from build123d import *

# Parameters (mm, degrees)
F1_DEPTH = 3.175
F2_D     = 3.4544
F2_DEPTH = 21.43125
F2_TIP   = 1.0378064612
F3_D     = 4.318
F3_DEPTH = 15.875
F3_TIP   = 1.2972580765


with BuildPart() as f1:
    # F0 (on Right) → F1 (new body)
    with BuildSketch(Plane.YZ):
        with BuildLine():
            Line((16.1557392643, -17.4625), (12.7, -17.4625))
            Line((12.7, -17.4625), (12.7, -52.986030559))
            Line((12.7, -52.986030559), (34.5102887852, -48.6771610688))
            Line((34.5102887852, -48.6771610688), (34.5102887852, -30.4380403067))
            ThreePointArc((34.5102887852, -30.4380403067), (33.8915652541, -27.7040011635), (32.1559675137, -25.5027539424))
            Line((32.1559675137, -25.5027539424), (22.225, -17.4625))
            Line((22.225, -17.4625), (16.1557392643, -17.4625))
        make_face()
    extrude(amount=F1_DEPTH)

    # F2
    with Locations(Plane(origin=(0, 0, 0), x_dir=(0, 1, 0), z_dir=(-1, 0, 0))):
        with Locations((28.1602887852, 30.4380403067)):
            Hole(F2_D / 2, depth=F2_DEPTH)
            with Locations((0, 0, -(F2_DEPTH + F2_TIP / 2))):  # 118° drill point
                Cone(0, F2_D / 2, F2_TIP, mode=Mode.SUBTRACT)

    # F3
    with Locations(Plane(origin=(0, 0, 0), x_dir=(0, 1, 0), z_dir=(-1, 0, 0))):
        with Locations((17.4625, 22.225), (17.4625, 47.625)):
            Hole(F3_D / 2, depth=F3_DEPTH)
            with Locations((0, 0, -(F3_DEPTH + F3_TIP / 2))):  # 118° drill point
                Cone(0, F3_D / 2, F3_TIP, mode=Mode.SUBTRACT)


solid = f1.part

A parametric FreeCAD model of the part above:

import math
import FreeCAD as App
import Part
import Sketcher
from FreeCAD import Vector
Q = App.Units.Quantity

doc = App.newDocument("Part")
body = doc.addObject("PartDesign::Body", "Body")

# Sketch on YZ plane
sketch1 = body.newObject("Sketcher::SketchObject", "Sketch")
sketch1.AttachmentSupport = (doc.getObject("YZ_Plane"), [""])
sketch1.MapMode = "FlatFace"
sketch1.addGeometry([
    Part.LineSegment(Vector(13, -17, 0), Vector(13, -53, 0)),  # 0
    Part.LineSegment(Vector(13, -53, 0), Vector(35, -49, 0)),  # 1
    Part.LineSegment(Vector(35, -49, 0), Vector(35, -30, 0)),  # 2
    Part.ArcOfCircle(Part.Circle(Vector(28, -30, 0), Vector(0, 0, 1), 6), math.radians(0), math.radians(51)),  # 3
    Part.LineSegment(Vector(32, -26, 0), Vector(22, -17, 0)),  # 4
    Part.LineSegment(Vector(22, -17, 0), Vector(13, -17, 0)),  # 5
], False)
sketch1.addConstraint([
    Sketcher.Constraint("Coincident", 0, 2, 1, 1),
    Sketcher.Constraint("Coincident", 1, 2, 2, 1),
    Sketcher.Constraint("Tangent", 2, 2, 3, 1),
    Sketcher.Constraint("Tangent", 3, 2, 4, 1),
    Sketcher.Constraint("Coincident", 4, 2, 5, 1),
    Sketcher.Constraint("Coincident", 5, 2, 0, 1),
    Sketcher.Constraint("Vertical", 0),
    Sketcher.Constraint("Vertical", 2),
    Sketcher.Constraint("Horizontal", 5),
    Sketcher.Constraint("Radius", 3, Q("0.25 in")),
    Sketcher.Constraint("DistanceX", -1, 1, 0, 2, Q("0.5 in")),
    Sketcher.Constraint("DistanceX", 5, 2, 5, 1, Q("0.375 in")),
    Sketcher.Constraint("DistanceY", 4, 2, -1, 1, Q("0.6875 in")),
    Sketcher.Constraint("DistanceY", 0, 2, 0, 1, 35.523531),
    Sketcher.Constraint("DistanceY", 2, 1, 2, 2, 18.239121),
    Sketcher.Constraint("DistanceX", -1, 1, 3, 3, 28.160289),
    Sketcher.Constraint("DistanceY", 3, 3, -1, 1, 30.43804),
])
pad1 = body.newObject("PartDesign::Pad", "Pad")
pad1.Profile = sketch1
pad1.Length = Q("0.125 in")

# Sketch on YZ plane
sketch2 = body.newObject("Sketcher::SketchObject", "Sketch001")
sketch2.AttachmentSupport = (doc.getObject("YZ_Plane"), [""])
sketch2.MapMode = "FlatFace"
sketch2.addGeometry(Part.Circle(Vector(28.2, -30.4, 0), Vector(0, 0, 1), 1.7), False)
sketch2.addConstraint([
    Sketcher.Constraint("Diameter", 0, Q("0.136 in")),
    Sketcher.Constraint("DistanceX", -1, 1, 0, 3, 28.160289),
    Sketcher.Constraint("DistanceY", 0, 3, -1, 1, 30.43804),
])
doc.recompute()
hole = body.newObject("PartDesign::Hole", "Hole")
hole.Profile = sketch2
hole.ThreadType = "None"
hole.Diameter = Q("0.136 in")
hole.DepthType = "Dimension"
hole.Depth = Q("0.84375 in")
hole.DrillPoint = "Angled"
hole.DrillPointAngle = 118
hole.Reversed = True

# Sketch on YZ plane
sketch3 = body.newObject("Sketcher::SketchObject", "Sketch002")
sketch3.AttachmentSupport = (doc.getObject("YZ_Plane"), [""])
sketch3.MapMode = "FlatFace"
sketch3.addGeometry([
    Part.Circle(Vector(17.5, -22.2, 0), Vector(0, 0, 1), 2.2),
    Part.Circle(Vector(17.5, -47.6, 0), Vector(0, 0, 1), 2.2),
], False)
sketch3.addConstraint([
    Sketcher.Constraint("Equal", 0, 1),
    Sketcher.Constraint("Vertical", 0, 3, 1, 3),
    Sketcher.Constraint("Diameter", 0, Q("0.17 in")),
    Sketcher.Constraint("DistanceY", 1, 3, 0, 3, Q("1 in")),
    Sketcher.Constraint("DistanceX", -1, 1, 0, 3, Q("0.6875 in")),
    Sketcher.Constraint("DistanceY", 0, 3, -1, 1, Q("0.875 in")),
])
doc.recompute()
hole2 = body.newObject("PartDesign::Hole", "Hole001")
hole2.Profile = sketch3
hole2.ThreadType = "None"
hole2.Diameter = Q("0.17 in")
hole2.DepthType = "Dimension"
hole2.Depth = Q("0.625 in")
hole2.DrillPoint = "Angled"
hole2.DrillPointAngle = 118
hole2.Reversed = True

doc.recompute()
